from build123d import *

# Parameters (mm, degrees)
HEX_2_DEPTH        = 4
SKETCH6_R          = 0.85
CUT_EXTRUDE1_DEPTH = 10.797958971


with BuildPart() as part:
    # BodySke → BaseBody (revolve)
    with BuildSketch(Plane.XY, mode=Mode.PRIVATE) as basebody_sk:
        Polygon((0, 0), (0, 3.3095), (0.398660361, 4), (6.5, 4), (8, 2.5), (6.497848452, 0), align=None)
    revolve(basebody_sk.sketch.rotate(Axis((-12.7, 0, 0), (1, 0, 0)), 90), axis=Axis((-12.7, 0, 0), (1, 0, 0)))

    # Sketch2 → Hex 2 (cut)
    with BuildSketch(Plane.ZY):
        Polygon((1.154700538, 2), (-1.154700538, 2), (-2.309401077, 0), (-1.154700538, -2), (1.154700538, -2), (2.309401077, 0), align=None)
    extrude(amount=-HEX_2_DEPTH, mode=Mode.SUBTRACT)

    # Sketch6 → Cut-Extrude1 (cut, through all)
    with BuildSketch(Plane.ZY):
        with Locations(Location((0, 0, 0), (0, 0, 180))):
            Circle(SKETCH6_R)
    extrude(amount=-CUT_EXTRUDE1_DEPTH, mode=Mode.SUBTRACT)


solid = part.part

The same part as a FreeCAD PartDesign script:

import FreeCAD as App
import Part
import Sketcher
from FreeCAD import Vector
Q = App.Units.Quantity


def add_polygon(sketch, points):
    """Adds a closed chain of lines whose ends are joined by coincident constraints."""
    first, n = sketch.GeometryCount, len(points)
    for a, b in zip(points, points[1:] + points[:1]):
        sketch.addGeometry(Part.LineSegment(App.Vector(*a, 0), App.Vector(*b, 0)), False)
    for i in range(n):
        sketch.addConstraint(Sketcher.Constraint("Coincident", first + i, 2, first + (i + 1) % n, 1))

doc = App.newDocument("Part")
params = doc.addObject("Spreadsheet::Sheet", "Params")
for row, (alias, value) in enumerate([
    ("revolution_angle", "360 deg"),
    ("pocket1_length", "4 mm"),
    ("sketch3_diameter", "1.7 mm"),
], start=1):
    params.set(f"A{row}", alias)
    params.set(f"B{row}", "=" + value)
    params.setAlias(f"B{row}", alias)

body = doc.addObject("PartDesign::Body", "Body")

# Sketch on XY plane
sketch1 = doc.addObject("Sketcher::SketchObject", "Sketch")
body.addObject(sketch1)
sketch1.AttachmentSupport = (doc.XY_Plane, [""])
sketch1.MapMode = "FlatFace"
add_polygon(sketch1, [(0, 3.3), (0, 0), (6.5, 0), (8, 2.5), (6.5, 4), (0.4, 4)])  # lines 0-5
sketch1.addConstraint([
    Sketcher.Constraint("Vertical", 0),
    Sketcher.Constraint("Horizontal", 1),
    Sketcher.Constraint("Horizontal", 4),
    Sketcher.Constraint("Coincident", 0, 2, -1, 1),
    Sketcher.Constraint("Angle", 2, Q("59 deg")),
    Sketcher.Constraint("Angle", 3, Q("135 deg")),
    Sketcher.Constraint("Angle", 5, Q("-120 deg")),
    Sketcher.Constraint("DistanceX", -1, 1, 2, 2, Q("8 mm")),
    Sketcher.Constraint("DistanceY", -1, 1, 3, 2, Q("4 mm")),
    Sketcher.Constraint("DistanceY", -1, 1, 2, 2, Q("2.5 mm")),
    Sketcher.Constraint("DistanceY", 0, 2, 0, 1, Q("3.3095 mm")),
])
revolution = doc.addObject("PartDesign::Revolution", "Revolution")
body.addObject(revolution)
revolution.Profile = sketch1
revolution.ReferenceAxis = (sketch1, ["H_Axis"])
revolution.setExpression("Angle", "Params.revolution_angle")

# Sketch on YZ plane
sketch2 = doc.addObject("Sketcher::SketchObject", "Sketch001")
body.addObject(sketch2)
sketch2.AttachmentSupport = (doc.YZ_Plane, [""])
sketch2.MapMode = "FlatFace"
add_polygon(sketch2, [(2, 1.2), (2, -1.2), (0, -2.3), (-2, -1.2), (-2, 1.2), (0, 2.3)])  # lines 0-5
sketch2.addConstraint([
    Sketcher.Constraint("Vertical", 0),
    Sketcher.Constraint("Vertical", 3),
    Sketcher.Constraint("Symmetric", 0, 2, 3, 2, -1, 1),
    Sketcher.Constraint("Symmetric", 1, 2, 4, 2, -1, 1),
    Sketcher.Constraint("PointOnObject", 1, 2, -2),
    Sketcher.Constraint("Parallel", 2, 5),
    Sketcher.Constraint("Horizontal", 0, 2, 2, 2),
    Sketcher.Constraint("Angle", 1, Q("-150 deg")),
    Sketcher.Constraint("DistanceX", -1, 1, 0, 2, Q("2 mm")),
    Sketcher.Constraint("DistanceY", 0, 2, 0, 1, Q("2.309401 mm")),
])
pocket1 = doc.addObject("PartDesign::Pocket", "Pocket")
body.addObject(pocket1)
pocket1.Profile = sketch2
pocket1.setExpression("Length", "Params.pocket1_length")
pocket1.Reversed = True

# Sketch on YZ plane
sketch3 = doc.addObject("Sketcher::SketchObject", "Sketch002")
body.addObject(sketch3)
sketch3.AttachmentSupport = (doc.YZ_Plane, [""])
sketch3.MapMode = "FlatFace"
sketch3.addGeometry(Part.Circle(Vector(0, 0, 0), Vector(0, 0, 1), 0.8), False)
sketch3.addConstraint([
    Sketcher.Constraint("Coincident", 0, 3, -1, 1),
    Sketcher.Constraint("Diameter", 0, Q("1.7 mm")),
])
sketch3.setExpression("Constraints[1]", "Params.sketch3_diameter")
pocket2 = doc.addObject("PartDesign::Pocket", "Pocket001")
body.addObject(pocket2)
pocket2.Profile = sketch3
pocket2.Type = "ThroughAll"
pocket2.Reversed = True

doc.recompute()
